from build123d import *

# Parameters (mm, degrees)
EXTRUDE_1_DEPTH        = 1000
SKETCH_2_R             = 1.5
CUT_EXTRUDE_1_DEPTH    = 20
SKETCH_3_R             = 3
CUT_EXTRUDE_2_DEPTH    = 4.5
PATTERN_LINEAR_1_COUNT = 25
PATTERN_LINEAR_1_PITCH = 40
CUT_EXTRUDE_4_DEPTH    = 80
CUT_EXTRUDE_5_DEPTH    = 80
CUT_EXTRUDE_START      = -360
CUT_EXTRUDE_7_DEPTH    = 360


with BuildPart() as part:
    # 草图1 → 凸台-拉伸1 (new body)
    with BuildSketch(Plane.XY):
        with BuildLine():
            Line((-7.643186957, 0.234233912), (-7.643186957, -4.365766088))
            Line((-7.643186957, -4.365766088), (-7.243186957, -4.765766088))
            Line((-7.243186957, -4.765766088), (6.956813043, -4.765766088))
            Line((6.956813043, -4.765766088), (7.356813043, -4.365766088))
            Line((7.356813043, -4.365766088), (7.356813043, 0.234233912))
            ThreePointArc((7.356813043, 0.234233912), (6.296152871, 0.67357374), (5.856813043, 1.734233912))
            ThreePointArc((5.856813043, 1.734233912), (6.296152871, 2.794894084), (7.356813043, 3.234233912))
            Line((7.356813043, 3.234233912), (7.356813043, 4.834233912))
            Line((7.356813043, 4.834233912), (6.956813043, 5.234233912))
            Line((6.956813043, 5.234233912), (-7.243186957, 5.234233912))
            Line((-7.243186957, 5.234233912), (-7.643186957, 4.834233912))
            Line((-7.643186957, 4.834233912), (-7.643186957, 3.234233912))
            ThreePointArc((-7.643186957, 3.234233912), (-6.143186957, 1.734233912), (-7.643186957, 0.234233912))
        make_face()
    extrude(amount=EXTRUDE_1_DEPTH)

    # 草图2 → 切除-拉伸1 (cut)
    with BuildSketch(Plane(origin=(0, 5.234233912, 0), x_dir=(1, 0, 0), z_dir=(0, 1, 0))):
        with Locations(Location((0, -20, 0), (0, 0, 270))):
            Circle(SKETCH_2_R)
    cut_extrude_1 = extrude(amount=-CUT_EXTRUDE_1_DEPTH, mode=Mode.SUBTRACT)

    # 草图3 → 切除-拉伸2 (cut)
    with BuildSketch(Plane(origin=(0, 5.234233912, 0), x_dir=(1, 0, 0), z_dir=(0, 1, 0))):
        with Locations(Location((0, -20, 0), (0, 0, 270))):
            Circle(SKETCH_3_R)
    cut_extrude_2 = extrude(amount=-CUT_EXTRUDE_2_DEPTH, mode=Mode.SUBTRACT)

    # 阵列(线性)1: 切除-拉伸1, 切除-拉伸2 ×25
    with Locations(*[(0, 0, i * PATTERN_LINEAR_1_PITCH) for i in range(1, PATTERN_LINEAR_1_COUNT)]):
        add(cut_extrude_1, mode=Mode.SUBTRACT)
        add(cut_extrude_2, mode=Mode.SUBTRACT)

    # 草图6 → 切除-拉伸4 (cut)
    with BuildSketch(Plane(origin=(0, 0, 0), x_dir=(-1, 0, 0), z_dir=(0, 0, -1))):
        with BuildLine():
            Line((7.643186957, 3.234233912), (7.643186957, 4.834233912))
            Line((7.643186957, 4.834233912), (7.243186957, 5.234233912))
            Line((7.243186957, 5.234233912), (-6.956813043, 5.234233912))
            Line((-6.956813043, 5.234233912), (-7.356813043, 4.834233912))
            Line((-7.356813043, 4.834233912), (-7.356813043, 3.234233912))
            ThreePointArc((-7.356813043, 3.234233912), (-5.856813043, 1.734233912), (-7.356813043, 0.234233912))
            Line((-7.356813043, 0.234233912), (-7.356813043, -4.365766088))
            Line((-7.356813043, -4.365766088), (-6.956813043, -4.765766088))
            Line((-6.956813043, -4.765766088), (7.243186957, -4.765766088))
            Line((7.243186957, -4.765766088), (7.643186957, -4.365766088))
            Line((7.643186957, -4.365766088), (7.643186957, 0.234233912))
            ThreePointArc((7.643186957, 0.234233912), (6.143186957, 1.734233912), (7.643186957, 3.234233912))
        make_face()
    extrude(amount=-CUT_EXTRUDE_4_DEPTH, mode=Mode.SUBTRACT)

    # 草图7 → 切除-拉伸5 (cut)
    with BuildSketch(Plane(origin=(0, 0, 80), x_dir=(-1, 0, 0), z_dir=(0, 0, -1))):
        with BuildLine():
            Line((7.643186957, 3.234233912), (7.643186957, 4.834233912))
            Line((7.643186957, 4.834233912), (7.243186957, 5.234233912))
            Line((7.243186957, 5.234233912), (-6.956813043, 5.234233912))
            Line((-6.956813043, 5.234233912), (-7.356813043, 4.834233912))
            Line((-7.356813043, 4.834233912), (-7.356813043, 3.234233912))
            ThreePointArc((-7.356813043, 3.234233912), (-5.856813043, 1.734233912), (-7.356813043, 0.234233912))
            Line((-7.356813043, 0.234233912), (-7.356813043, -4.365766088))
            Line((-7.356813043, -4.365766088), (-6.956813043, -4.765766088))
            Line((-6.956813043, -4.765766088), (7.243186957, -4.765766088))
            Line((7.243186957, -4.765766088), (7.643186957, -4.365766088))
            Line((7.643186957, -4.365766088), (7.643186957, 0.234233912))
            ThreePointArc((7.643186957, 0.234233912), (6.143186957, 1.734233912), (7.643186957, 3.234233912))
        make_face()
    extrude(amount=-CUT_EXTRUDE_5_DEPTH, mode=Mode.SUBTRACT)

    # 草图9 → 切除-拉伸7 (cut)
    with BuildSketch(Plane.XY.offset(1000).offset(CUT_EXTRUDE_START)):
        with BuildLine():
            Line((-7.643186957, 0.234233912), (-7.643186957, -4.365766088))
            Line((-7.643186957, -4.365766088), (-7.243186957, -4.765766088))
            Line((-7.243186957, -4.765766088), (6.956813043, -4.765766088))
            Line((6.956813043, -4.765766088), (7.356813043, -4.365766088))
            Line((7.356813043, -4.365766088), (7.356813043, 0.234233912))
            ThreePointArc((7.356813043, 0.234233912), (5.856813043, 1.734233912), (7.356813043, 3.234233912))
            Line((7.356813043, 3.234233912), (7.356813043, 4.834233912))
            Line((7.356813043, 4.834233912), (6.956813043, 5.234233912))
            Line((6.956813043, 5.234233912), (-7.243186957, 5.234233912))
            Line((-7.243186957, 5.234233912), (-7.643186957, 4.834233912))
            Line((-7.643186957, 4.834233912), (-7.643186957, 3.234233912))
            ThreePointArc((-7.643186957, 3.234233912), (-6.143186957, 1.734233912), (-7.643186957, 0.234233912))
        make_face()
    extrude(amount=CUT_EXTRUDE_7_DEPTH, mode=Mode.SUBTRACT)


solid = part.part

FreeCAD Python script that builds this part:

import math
import FreeCAD as App
import Part
import Sketcher
from FreeCAD import Vector

doc = App.newDocument("Part")
body = doc.addObject("PartDesign::Body", "Body")

# Sketch on XY plane
sketch1 = body.newObject("Sketcher::SketchObject", "Sketch")
sketch1.AttachmentSupport = (doc.getObject("XY_Plane"), [""])
sketch1.MapMode = "FlatFace"
sketch1.addGeometry([
    Part.LineSegment(Vector(-7.6, 0.2, 0), Vector(-7.6, -4.4, 0)),  # 0
    Part.LineSegment(Vector(-7.6, -4.4, 0), Vector(-7.2, -4.8, 0)),  # 1
    Part.LineSegment(Vector(-7.2, -4.8, 0), Vector(7, -4.8, 0)),  # 2
    Part.LineSegment(Vector(7, -4.8, 0), Vector(7.4, -4.4, 0)),  # 3
    Part.LineSegment(Vector(7.4, -4.4, 0), Vector(7.4, 0.2, 0)),  # 4
    Part.ArcOfCircle(Part.Circle(Vector(7.4, 1.7, 0), Vector(0, 0, 1), 1.5), math.radians(180), math.radians(270)),  # 5
    Part.ArcOfCircle(Part.Circle(Vector(7.4, 1.7, 0), Vector(0, 0, 1), 1.5), math.radians(90), math.radians(180)),  # 6
    Part.LineSegment(Vector(7.4, 3.2, 0), Vector(7.4, 4.8, 0)),  # 7
    Part.LineSegment(Vector(7.4, 4.8, 0), Vector(7, 5.2, 0)),  # 8
    Part.LineSegment(Vector(7, 5.2, 0), Vector(-7.2, 5.2, 0)),  # 9
    Part.LineSegment(Vector(-7.2, 5.2, 0), Vector(-7.6, 4.8, 0)),  # 10
    Part.LineSegment(Vector(-7.6, 4.8, 0), Vector(-7.6, 3.2, 0)),  # 11
    Part.ArcOfCircle(Part.Circle(Vector(-7.6, 1.7, 0), Vector(0, 0, 1), 1.5), math.radians(-90), math.radians(90)),  # 12
], False)
sketch1.addConstraint([
    Sketcher.Constraint("Coincident", 0, 2, 1, 1),
    Sketcher.Constraint("Coincident", 1, 2, 2, 1),
    Sketcher.Constraint("Coincident", 2, 2, 3, 1),
    Sketcher.Constraint("Coincident", 3, 2, 4, 1),
    Sketcher.Constraint("Coincident", 4, 2, 5, 2),
    Sketcher.Constraint("Tangent", 5, 1, 6, 2),
    Sketcher.Constraint("Coincident", 6, 1, 7, 1),
    Sketcher.Constraint("Coincident", 7, 2, 8, 1),
    Sketcher.Constraint("Coincident", 8, 2, 9, 1),
    Sketcher.Constraint("Coincident", 9, 2, 10, 1),
    Sketcher.Constraint("Coincident", 10, 2, 11, 1),
    Sketcher.Constraint("Coincident", 11, 2, 12, 2),
    Sketcher.Constraint("Coincident", 12, 1, 0, 1),
    Sketcher.Constraint("Vertical", 0),
    Sketcher.Constraint("Horizontal", 2),
    Sketcher.Constraint("Vertical", 4),
    Sketcher.Constraint("Vertical", 7),
    Sketcher.Constraint("Horizontal", 9),
    Sketcher.Constraint("Vertical", 11),
    Sketcher.Constraint("Equal", 5, 6),
    Sketcher.Constraint("Equal", 6, 12),
    Sketcher.Constraint("Perpendicular", 1, 3),
    Sketcher.Constraint("Perpendicular", 3, 8),
    Sketcher.Constraint("Perpendicular", 8, 10),
    Sketcher.Constraint("Horizontal", 6, 3, 12, 3),
    Sketcher.Constraint("Horizontal", 0, 2, 3, 2),
    Sketcher.Constraint("Horizontal", 12, 3, 5, 1),
    Sketcher.Constraint("Horizontal", 7, 2, 10, 2),
    Sketcher.Constraint("Vertical", 12, 3, 0, 2),
    Sketcher.Constraint("Vertical", 6, 3, 3, 2),
    Sketcher.Constraint("Vertical", 4, 2, 6, 1),
    Sketcher.Constraint("Vertical", 2, 2, 8, 2),
    Sketcher.Constraint("Vertical", 1, 2, 9, 2),
    Sketcher.Constraint("Vertical", 0, 2, 10, 2),
    Sketcher.Constraint("Radius", 5, 1.5),
    Sketcher.Constraint("DistanceX", 2, 1, 2, 2, 14.2),
    Sketcher.Constraint("DistanceY", 0, 2, 0, 1, 4.6),
    Sketcher.Constraint("DistanceY", 7, 1, 7, 2, 1.6),
    Sketcher.Constraint("DistanceX", 12, 3, 5, 3, 15.0),
    Sketcher.Constraint("DistanceX", -1, 1, 5, 3, 7.356813),
    Sketcher.Constraint("DistanceY", -1, 1, 5, 3, 1.734234),
])
pad1 = body.newObject("PartDesign::Pad", "Pad")
pad1.Profile = sketch1
pad1.Length = 1000

# Sketch on XZ plane
sketch2 = body.newObject("Sketcher::SketchObject", "Sketch001")
sketch2.AttachmentSupport = (doc.getObject("XZ_Plane"), [""])
sketch2.MapMode = "FlatFace"
sketch2.AttachmentOffset = App.Placement(Vector(0, 0, -5.234234), App.Rotation())
sketch2.addGeometry(Part.Circle(Vector(0, 20, 0), Vector(0, 0, 1), 1.5), False)
sketch2.addConstraint([
    Sketcher.Constraint("PointOnObject", 0, 3, -2),
    Sketcher.Constraint("Diameter", 0, 3.0),
    Sketcher.Constraint("DistanceY", -1, 1, 0, 3, 20.0),
])
pocket1 = body.newObject("PartDesign::Pocket", "Pocket")
pocket1.Profile = sketch2
pocket1.Length = 20
pocket1.Reversed = True

# Sketch on XZ plane
sketch3 = body.newObject("Sketcher::SketchObject", "Sketch002")
sketch3.AttachmentSupport = (doc.getObject("XZ_Plane"), [""])
sketch3.MapMode = "FlatFace"
sketch3.AttachmentOffset = App.Placement(Vector(0, 0, -5.234234), App.Rotation())
sketch3.addGeometry(Part.Circle(Vector(0, 20, 0), Vector(0, 0, 1), 3), False)
sketch3.addConstraint([
    Sketcher.Constraint("PointOnObject", 0, 3, -2),
    Sketcher.Constraint("Diameter", 0, 6.0),
    Sketcher.Constraint("DistanceY", -1, 1, 0, 3, 20.0),
])
pocket2 = body.newObject("PartDesign::Pocket", "Pocket001")
pocket2.Profile = sketch3
pocket2.Length = 4.5
pocket2.Reversed = True
doc.recompute()

linearpattern = body.newObject("PartDesign::LinearPattern", "LinearPattern")
linearpattern.Originals = [pocket1, pocket2]
linearpattern.Direction = (doc.getObject("Z_Axis"), [""])
linearpattern.Mode = "offset"
linearpattern.Offset = 40
linearpattern.Occurrences = 25
body.Tip = linearpattern

# Sketch on XY plane
sketch4 = body.newObject("Sketcher::SketchObject", "Sketch003")
sketch4.AttachmentSupport = (doc.getObject("XY_Plane"), [""])
sketch4.MapMode = "FlatFace"
sketch4.addGeometry([
    Part.LineSegment(Vector(-7.6, 3.2, 0), Vector(-7.6, 4.8, 0)),  # 0
    Part.LineSegment(Vector(-7.6, 4.8, 0), Vector(-7.2, 5.2, 0)),  # 1
    Part.LineSegment(Vector(-7.2, 5.2, 0), Vector(7, 5.2, 0)),  # 2
    Part.LineSegment(Vector(7, 5.2, 0), Vector(7.4, 4.8, 0)),  # 3
    Part.LineSegment(Vector(7.4, 4.8, 0), Vector(7.4, 3.2, 0)),  # 4
    Part.ArcOfCircle(Part.Circle(Vector(7.4, 1.7, 0), Vector(0, 0, 1), 1.5), math.radians(90), math.radians(270)),  # 5
    Part.LineSegment(Vector(7.4, 0.2, 0), Vector(7.4, -4.4, 0)),  # 6
    Part.LineSegment(Vector(7.4, -4.4, 0), Vector(7, -4.8, 0)),  # 7
    Part.LineSegment(Vector(7, -4.8, 0), Vector(-7.2, -4.8, 0)),  # 8
    Part.LineSegment(Vector(-7.2, -4.8, 0), Vector(-7.6, -4.4, 0)),  # 9
    Part.LineSegment(Vector(-7.6, -4.4, 0), Vector(-7.6, 0.2, 0)),  # 10
    Part.ArcOfCircle(Part.Circle(Vector(-7.6, 1.7, 0), Vector(0, 0, 1), 1.5), math.radians(-90), math.radians(90)),  # 11
], False)
sketch4.addConstraint([
    Sketcher.Constraint("Coincident", 0, 2, 1, 1),
    Sketcher.Constraint("Coincident", 1, 2, 2, 1),
    Sketcher.Constraint("Coincident", 2, 2, 3, 1),
    Sketcher.Constraint("Coincident", 3, 2, 4, 1),
    Sketcher.Constraint("Coincident", 4, 2, 5, 1),
    Sketcher.Constraint("Coincident", 5, 2, 6, 1),
    Sketcher.Constraint("Coincident", 6, 2, 7, 1),
    Sketcher.Constraint("Coincident", 7, 2, 8, 1),
    Sketcher.Constraint("Coincident", 8, 2, 9, 1),
    Sketcher.Constraint("Coincident", 9, 2, 10, 1),
    Sketcher.Constraint("Coincident", 10, 2, 11, 1),
    Sketcher.Constraint("Coincident", 11, 2, 0, 1),
    Sketcher.Constraint("Vertical", 0),
    Sketcher.Constraint("Horizontal", 2),
    Sketcher.Constraint("Vertical", 4),
    Sketcher.Constraint("Vertical", 6),
    Sketcher.Constraint("Horizontal", 8),
    Sketcher.Constraint("Vertical", 10),
    Sketcher.Constraint("Equal", 5, 11),
    Sketcher.Constraint("Perpendicular", 1, 3),
    Sketcher.Constraint("Perpendicular", 3, 7),
    Sketcher.Constraint("Perpendicular", 7, 9),
    Sketcher.Constraint("Horizontal", 5, 3, 11, 3),
    Sketcher.Constraint("Horizontal", 0, 2, 3, 2),
    Sketcher.Constraint("Horizontal", 6, 2, 9, 2),
    Sketcher.Constraint("Vertical", 11, 3, 0, 2),
    Sketcher.Constraint("Vertical", 5, 3, 3, 2),
    Sketcher.Constraint("Vertical", 4, 2, 5, 2),
    Sketcher.Constraint("Vertical", 2, 2, 7, 2),
    Sketcher.Constraint("Vertical", 1, 2, 8, 2),
    Sketcher.Constraint("Vertical", 0, 2, 9, 2),
    Sketcher.Constraint("Radius", 5, 1.5),
    Sketcher.Constraint("DistanceX", 2, 1, 2, 2, 14.2),
    Sketcher.Constraint("DistanceY", 0, 1, 0, 2, 1.6),
    Sketcher.Constraint("DistanceY", 6, 2, 6, 1, 4.6),
    Sketcher.Constraint("DistanceX", 11, 3, 5, 3, 15.0),
    Sketcher.Constraint("DistanceX", -1, 1, 5, 3, 7.356813),
    Sketcher.Constraint("DistanceY", -1, 1, 5, 3, 1.734234),
])
pocket3 = body.newObject("PartDesign::Pocket", "Pocket002")
pocket3.Profile = sketch4
pocket3.Length = 80
pocket3.Reversed = True

# Sketch on XY plane
sketch5 = body.newObject("Sketcher::SketchObject", "Sketch004")
sketch5.AttachmentSupport = (doc.getObject("XY_Plane"), [""])
sketch5.MapMode = "FlatFace"
sketch5.AttachmentOffset = App.Placement(Vector(0, 0, 80), App.Rotation())
sketch5.addGeometry([
    Part.LineSegment(Vector(-7.6, 3.2, 0), Vector(-7.6, 4.8, 0)),  # 0
    Part.LineSegment(Vector(-7.6, 4.8, 0), Vector(-7.2, 5.2, 0)),  # 1
    Part.LineSegment(Vector(-7.2, 5.2, 0), Vector(7, 5.2, 0)),  # 2
    Part.LineSegment(Vector(7, 5.2, 0), Vector(7.4, 4.8, 0)),  # 3
    Part.LineSegment(Vector(7.4, 4.8, 0), Vector(7.4, 3.2, 0)),  # 4
    Part.ArcOfCircle(Part.Circle(Vector(7.4, 1.7, 0), Vector(0, 0, 1), 1.5), math.radians(90), math.radians(270)),  # 5
    Part.LineSegment(Vector(7.4, 0.2, 0), Vector(7.4, -4.4, 0)),  # 6
    Part.LineSegment(Vector(7.4, -4.4, 0), Vector(7, -4.8, 0)),  # 7
    Part.LineSegment(Vector(7, -4.8, 0), Vector(-7.2, -4.8, 0)),  # 8
    Part.LineSegment(Vector(-7.2, -4.8, 0), Vector(-7.6, -4.4, 0)),  # 9
    Part.LineSegment(Vector(-7.6, -4.4, 0), Vector(-7.6, 0.2, 0)),  # 10
    Part.ArcOfCircle(Part.Circle(Vector(-7.6, 1.7, 0), Vector(0, 0, 1), 1.5), math.radians(-90), math.radians(90)),  # 11
], False)
sketch5.addConstraint([
    Sketcher.Constraint("Coincident", 0, 2, 1, 1),
    Sketcher.Constraint("Coincident", 1, 2, 2, 1),
    Sketcher.Constraint("Coincident", 2, 2, 3, 1),
    Sketcher.Constraint("Coincident", 3, 2, 4, 1),
    Sketcher.Constraint("Coincident", 4, 2, 5, 1),
    Sketcher.Constraint("Coincident", 5, 2, 6, 1),
    Sketcher.Constraint("Coincident", 6, 2, 7, 1),
    Sketcher.Constraint("Coincident", 7, 2, 8, 1),
    Sketcher.Constraint("Coincident", 8, 2, 9, 1),
    Sketcher.Constraint("Coincident", 9, 2, 10, 1),
    Sketcher.Constraint("Coincident", 10, 2, 11, 1),
    Sketcher.Constraint("Coincident", 11, 2, 0, 1),
    Sketcher.Constraint("Vertical", 0),
    Sketcher.Constraint("Horizontal", 2),
    Sketcher.Constraint("Vertical", 4),
    Sketcher.Constraint("Vertical", 6),
    Sketcher.Constraint("Horizontal", 8),
    Sketcher.Constraint("Vertical", 10),
    Sketcher.Constraint("Equal", 5, 11),
    Sketcher.Constraint("Perpendicular", 1, 3),
    Sketcher.Constraint("Perpendicular", 3, 7),
    Sketcher.Constraint("Perpendicular", 7, 9),
    Sketcher.Constraint("Horizontal", 5, 3, 11, 3),
    Sketcher.Constraint("Horizontal", 0, 2, 3, 2),
    Sketcher.Constraint("Horizontal", 6, 2, 9, 2),
    Sketcher.Constraint("Vertical", 11, 3, 0, 2),
    Sketcher.Constraint("Vertical", 5, 3, 3, 2),
    Sketcher.Constraint("Vertical", 4, 2, 5, 2),
    Sketcher.Constraint("Vertical", 2, 2, 7, 2),
    Sketcher.Constraint("Vertical", 1, 2, 8, 2),
    Sketcher.Constraint("Vertical", 0, 2, 9, 2),
    Sketcher.Constraint("Radius", 5, 1.5),
    Sketcher.Constraint("DistanceX", 2, 1, 2, 2, 14.2),
    Sketcher.Constraint("DistanceY", 0, 1, 0, 2, 1.6),
    Sketcher.Constraint("DistanceY", 6, 2, 6, 1, 4.6),
    Sketcher.Constraint("DistanceX", 11, 3, 5, 3, 15.0),
    Sketcher.Constraint("DistanceX", -1, 1, 5, 3, 7.356813),
    Sketcher.Constraint("DistanceY", -1, 1, 5, 3, 1.734234),
])
pocket4 = body.newObject("PartDesign::Pocket", "Pocket003")
pocket4.Profile = sketch5
pocket4.Length = 80
pocket4.Reversed = True

# Sketch on XY plane
sketch6 = body.newObject("Sketcher::SketchObject", "Sketch005")
sketch6.AttachmentSupport = (doc.getObject("XY_Plane"), [""])
sketch6.MapMode = "FlatFace"
sketch6.AttachmentOffset = App.Placement(Vector(0, 0, 640), App.Rotation())
sketch6.addGeometry([
    Part.LineSegment(Vector(-7.6, 0.2, 0), Vector(-7.6, -4.4, 0)),  # 0
    Part.LineSegment(Vector(-7.6, -4.4, 0), Vector(-7.2, -4.8, 0)),  # 1
    Part.LineSegment(Vector(-7.2, -4.8, 0), Vector(7, -4.8, 0)),  # 2
    Part.LineSegment(Vector(7, -4.8, 0), Vector(7.4, -4.4, 0)),  # 3
    Part.LineSegment(Vector(7.4, -4.4, 0), Vector(7.4, 0.2, 0)),  # 4
    Part.ArcOfCircle(Part.Circle(Vector(7.4, 1.7, 0), Vector(0, 0, 1), 1.5), math.radians(90), math.radians(270)),  # 5
    Part.LineSegment(Vector(7.4, 3.2, 0), Vector(7.4, 4.8, 0)),  # 6
    Part.LineSegment(Vector(7.4, 4.8, 0), Vector(7, 5.2, 0)),  # 7
    Part.LineSegment(Vector(7, 5.2, 0), Vector(-7.2, 5.2, 0)),  # 8
    Part.LineSegment(Vector(-7.2, 5.2, 0), Vector(-7.6, 4.8, 0)),  # 9
    Part.LineSegment(Vector(-7.6, 4.8, 0), Vector(-7.6, 3.2, 0)),  # 10
    Part.ArcOfCircle(Part.Circle(Vector(-7.6, 1.7, 0), Vector(0, 0, 1), 1.5), math.radians(-90), math.radians(90)),  # 11
], False)
sketch6.addConstraint([
    Sketcher.Constraint("Coincident", 0, 2, 1, 1),
    Sketcher.Constraint("Coincident", 1, 2, 2, 1),
    Sketcher.Constraint("Coincident", 2, 2, 3, 1),
    Sketcher.Constraint("Coincident", 3, 2, 4, 1),
    Sketcher.Constraint("Coincident", 4, 2, 5, 2),
    Sketcher.Constraint("Coincident", 5, 1, 6, 1),
    Sketcher.Constraint("Coincident", 6, 2, 7, 1),
    Sketcher.Constraint("Coincident", 7, 2, 8, 1),
    Sketcher.Constraint("Coincident", 8, 2, 9, 1),
    Sketcher.Constraint("Coincident", 9, 2, 10, 1),
    Sketcher.Constraint("Coincident", 10, 2, 11, 2),
    Sketcher.Constraint("Coincident", 11, 1, 0, 1),
    Sketcher.Constraint("Vertical", 0),
    Sketcher.Constraint("Horizontal", 2),
    Sketcher.Constraint("Vertical", 4),
    Sketcher.Constraint("Vertical", 6),
    Sketcher.Constraint("Horizontal", 8),
    Sketcher.Constraint("Vertical", 10),
    Sketcher.Constraint("Equal", 5, 11),
    Sketcher.Constraint("Perpendicular", 1, 3),
    Sketcher.Constraint("Perpendicular", 3, 7),
    Sketcher.Constraint("Perpendicular", 7, 9),
    Sketcher.Constraint("Horizontal", 5, 3, 11, 3),
    Sketcher.Constraint("Horizontal", 0, 2, 3, 2),
    Sketcher.Constraint("Horizontal", 6, 2, 9, 2),
    Sketcher.Constraint("Vertical", 11, 3, 0, 2),
    Sketcher.Constraint("Vertical", 5, 3, 3, 2),
    Sketcher.Constraint("Vertical", 4, 2, 5, 1),
    Sketcher.Constraint("Vertical", 2, 2, 7, 2),
    Sketcher.Constraint("Vertical", 1, 2, 8, 2),
    Sketcher.Constraint("Vertical", 0, 2, 9, 2),
    Sketcher.Constraint("Radius", 5, 1.5),
    Sketcher.Constraint("DistanceX", 2, 1, 2, 2, 14.2),
    Sketcher.Constraint("DistanceY", 0, 2, 0, 1, 4.6),
    Sketcher.Constraint("DistanceY", 6, 1, 6, 2, 1.6),
    Sketcher.Constraint("DistanceX", 11, 3, 5, 3, 15.0),
    Sketcher.Constraint("DistanceX", -1, 1, 5, 3, 7.356813),
    Sketcher.Constraint("DistanceY", -1, 1, 5, 3, 1.734234),
])
pocket5 = body.newObject("PartDesign::Pocket", "Pocket004")
pocket5.Profile = sketch6
pocket5.Length = 360
pocket5.Reversed = True

doc.recompute()
